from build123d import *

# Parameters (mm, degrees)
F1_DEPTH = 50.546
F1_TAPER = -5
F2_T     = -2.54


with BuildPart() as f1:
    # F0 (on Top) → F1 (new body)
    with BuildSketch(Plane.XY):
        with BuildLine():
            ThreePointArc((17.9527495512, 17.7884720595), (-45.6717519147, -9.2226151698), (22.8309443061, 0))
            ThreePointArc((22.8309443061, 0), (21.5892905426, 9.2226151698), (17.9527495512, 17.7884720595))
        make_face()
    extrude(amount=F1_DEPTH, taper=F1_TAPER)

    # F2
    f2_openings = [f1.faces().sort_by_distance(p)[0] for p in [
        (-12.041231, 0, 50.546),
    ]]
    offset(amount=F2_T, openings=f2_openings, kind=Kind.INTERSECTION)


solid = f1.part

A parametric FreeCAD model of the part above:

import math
import FreeCAD as App
import Part
import Sketcher
from FreeCAD import Vector
Q = App.Units.Quantity


def faces_at(feature, points):
    """Names of the faces that lie closest to the given points."""
    faces = feature.Shape.Faces
    near = lambda p: min(range(len(faces)), key=lambda i: faces[i].distToShape(Part.Vertex(*p))[0])
    return sorted({f"Face{near(p) + 1}" for p in points})

doc = App.newDocument("Part")
body = doc.addObject("PartDesign::Body", "Body")

# Sketch on XY plane
sketch1 = body.newObject("Sketcher::SketchObject", "Sketch")
sketch1.AttachmentSupport = (doc.getObject("XY_Plane"), [""])
sketch1.MapMode = "FlatFace"
sketch1.addGeometry([
    Part.ArcOfCircle(Part.Circle(Vector(-12.041231, 0, 0), Vector(0, 0, 1), 34.872175), math.radians(30.670826), math.radians(360)),
    Part.ArcOfCircle(Part.Circle(Vector(-12.041231, 0, 0), Vector(0, 0, 1), 34.872175), math.radians(0), math.radians(30.670826)),
], False)
sketch1.addConstraint([
    Sketcher.Constraint("Tangent", 0, 1, 1, 2),
    Sketcher.Constraint("Coincident", 1, 1, 0, 2),
    Sketcher.Constraint("PointOnObject", 0, 3, -1),
    Sketcher.Constraint("PointOnObject", 1, 1, -1),
    Sketcher.Constraint("Radius", 0, 34.872175),
    Sketcher.Constraint("DistanceX", 0, 3, -1, 1, 12.041231),
    Sketcher.Constraint("DistanceX", -1, 1, 0, 1, 17.95275),
])
pad1 = body.newObject("PartDesign::Pad", "Pad")
pad1.Profile = sketch1
pad1.Length = Q("1.99 in")
pad1.TaperAngle = 5
doc.recompute()

thickness = body.newObject("PartDesign::Thickness", "Thickness")
thickness.Base = (pad1, faces_at(pad1, [(-12.041, 0, 50.546)]))
thickness.Value = Q("0.1 in")
thickness.Reversed = True
thickness.Join = "Intersection"

doc.recompute()
